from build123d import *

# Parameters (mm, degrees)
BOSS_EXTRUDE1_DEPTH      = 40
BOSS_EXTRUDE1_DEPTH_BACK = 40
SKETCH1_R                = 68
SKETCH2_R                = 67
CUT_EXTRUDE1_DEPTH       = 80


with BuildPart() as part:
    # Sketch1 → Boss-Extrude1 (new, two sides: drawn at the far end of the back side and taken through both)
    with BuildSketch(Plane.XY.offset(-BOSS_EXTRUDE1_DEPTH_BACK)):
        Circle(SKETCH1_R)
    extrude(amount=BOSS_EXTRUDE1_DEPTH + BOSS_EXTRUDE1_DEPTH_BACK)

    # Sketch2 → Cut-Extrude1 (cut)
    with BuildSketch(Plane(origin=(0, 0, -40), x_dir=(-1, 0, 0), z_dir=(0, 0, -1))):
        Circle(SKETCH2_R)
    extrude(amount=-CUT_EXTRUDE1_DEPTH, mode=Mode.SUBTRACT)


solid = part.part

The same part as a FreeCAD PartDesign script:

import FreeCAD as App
import Part
import Sketcher
from FreeCAD import Vector
Q = App.Units.Quantity

doc = App.newDocument("Part")
body = doc.addObject("PartDesign::Body", "Body")

sketch1 = doc.addObject("Sketcher::SketchObject", "Sketch")
body.addObject(sketch1)
sketch1.AttachmentSupport = (doc.XY_Plane, [""])
sketch1.MapMode = "FlatFace"
sketch1.addGeometry(Part.Circle(Vector(0, 0, 0), Vector(0, 0, 1), 68), False)
sketch1.addConstraint([
    Sketcher.Constraint("Coincident", 0, 3, -1, 1),
    Sketcher.Constraint("Diameter", 0, Q("136 mm")),
])
pad1 = doc.addObject("PartDesign::Pad", "Pad")
body.addObject(pad1)
pad1.Profile = sketch1
pad1.Type = "TwoLengths"
pad1.Length = 40
pad1.Length2 = 40

sketch2 = doc.addObject("Sketcher::SketchObject", "Sketch001")
body.addObject(sketch2)
sketch2.AttachmentSupport = (doc.XY_Plane, [""])
sketch2.MapMode = "FlatFace"
sketch2.AttachmentOffset = App.Placement(Vector(0, 0, -40), App.Rotation())
sketch2.addGeometry(Part.Circle(Vector(0, 0, 0), Vector(0, 0, 1), 67), False)
sketch2.addConstraint([
    Sketcher.Constraint("Coincident", 0, 3, -1, 1),
    Sketcher.Constraint("Diameter", 0, Q("134 mm")),
])
pocket1 = doc.addObject("PartDesign::Pocket", "Pocket")
body.addObject(pocket1)
pocket1.Profile = sketch2
pocket1.Length = 80
pocket1.Reversed = True

doc.recompute()
